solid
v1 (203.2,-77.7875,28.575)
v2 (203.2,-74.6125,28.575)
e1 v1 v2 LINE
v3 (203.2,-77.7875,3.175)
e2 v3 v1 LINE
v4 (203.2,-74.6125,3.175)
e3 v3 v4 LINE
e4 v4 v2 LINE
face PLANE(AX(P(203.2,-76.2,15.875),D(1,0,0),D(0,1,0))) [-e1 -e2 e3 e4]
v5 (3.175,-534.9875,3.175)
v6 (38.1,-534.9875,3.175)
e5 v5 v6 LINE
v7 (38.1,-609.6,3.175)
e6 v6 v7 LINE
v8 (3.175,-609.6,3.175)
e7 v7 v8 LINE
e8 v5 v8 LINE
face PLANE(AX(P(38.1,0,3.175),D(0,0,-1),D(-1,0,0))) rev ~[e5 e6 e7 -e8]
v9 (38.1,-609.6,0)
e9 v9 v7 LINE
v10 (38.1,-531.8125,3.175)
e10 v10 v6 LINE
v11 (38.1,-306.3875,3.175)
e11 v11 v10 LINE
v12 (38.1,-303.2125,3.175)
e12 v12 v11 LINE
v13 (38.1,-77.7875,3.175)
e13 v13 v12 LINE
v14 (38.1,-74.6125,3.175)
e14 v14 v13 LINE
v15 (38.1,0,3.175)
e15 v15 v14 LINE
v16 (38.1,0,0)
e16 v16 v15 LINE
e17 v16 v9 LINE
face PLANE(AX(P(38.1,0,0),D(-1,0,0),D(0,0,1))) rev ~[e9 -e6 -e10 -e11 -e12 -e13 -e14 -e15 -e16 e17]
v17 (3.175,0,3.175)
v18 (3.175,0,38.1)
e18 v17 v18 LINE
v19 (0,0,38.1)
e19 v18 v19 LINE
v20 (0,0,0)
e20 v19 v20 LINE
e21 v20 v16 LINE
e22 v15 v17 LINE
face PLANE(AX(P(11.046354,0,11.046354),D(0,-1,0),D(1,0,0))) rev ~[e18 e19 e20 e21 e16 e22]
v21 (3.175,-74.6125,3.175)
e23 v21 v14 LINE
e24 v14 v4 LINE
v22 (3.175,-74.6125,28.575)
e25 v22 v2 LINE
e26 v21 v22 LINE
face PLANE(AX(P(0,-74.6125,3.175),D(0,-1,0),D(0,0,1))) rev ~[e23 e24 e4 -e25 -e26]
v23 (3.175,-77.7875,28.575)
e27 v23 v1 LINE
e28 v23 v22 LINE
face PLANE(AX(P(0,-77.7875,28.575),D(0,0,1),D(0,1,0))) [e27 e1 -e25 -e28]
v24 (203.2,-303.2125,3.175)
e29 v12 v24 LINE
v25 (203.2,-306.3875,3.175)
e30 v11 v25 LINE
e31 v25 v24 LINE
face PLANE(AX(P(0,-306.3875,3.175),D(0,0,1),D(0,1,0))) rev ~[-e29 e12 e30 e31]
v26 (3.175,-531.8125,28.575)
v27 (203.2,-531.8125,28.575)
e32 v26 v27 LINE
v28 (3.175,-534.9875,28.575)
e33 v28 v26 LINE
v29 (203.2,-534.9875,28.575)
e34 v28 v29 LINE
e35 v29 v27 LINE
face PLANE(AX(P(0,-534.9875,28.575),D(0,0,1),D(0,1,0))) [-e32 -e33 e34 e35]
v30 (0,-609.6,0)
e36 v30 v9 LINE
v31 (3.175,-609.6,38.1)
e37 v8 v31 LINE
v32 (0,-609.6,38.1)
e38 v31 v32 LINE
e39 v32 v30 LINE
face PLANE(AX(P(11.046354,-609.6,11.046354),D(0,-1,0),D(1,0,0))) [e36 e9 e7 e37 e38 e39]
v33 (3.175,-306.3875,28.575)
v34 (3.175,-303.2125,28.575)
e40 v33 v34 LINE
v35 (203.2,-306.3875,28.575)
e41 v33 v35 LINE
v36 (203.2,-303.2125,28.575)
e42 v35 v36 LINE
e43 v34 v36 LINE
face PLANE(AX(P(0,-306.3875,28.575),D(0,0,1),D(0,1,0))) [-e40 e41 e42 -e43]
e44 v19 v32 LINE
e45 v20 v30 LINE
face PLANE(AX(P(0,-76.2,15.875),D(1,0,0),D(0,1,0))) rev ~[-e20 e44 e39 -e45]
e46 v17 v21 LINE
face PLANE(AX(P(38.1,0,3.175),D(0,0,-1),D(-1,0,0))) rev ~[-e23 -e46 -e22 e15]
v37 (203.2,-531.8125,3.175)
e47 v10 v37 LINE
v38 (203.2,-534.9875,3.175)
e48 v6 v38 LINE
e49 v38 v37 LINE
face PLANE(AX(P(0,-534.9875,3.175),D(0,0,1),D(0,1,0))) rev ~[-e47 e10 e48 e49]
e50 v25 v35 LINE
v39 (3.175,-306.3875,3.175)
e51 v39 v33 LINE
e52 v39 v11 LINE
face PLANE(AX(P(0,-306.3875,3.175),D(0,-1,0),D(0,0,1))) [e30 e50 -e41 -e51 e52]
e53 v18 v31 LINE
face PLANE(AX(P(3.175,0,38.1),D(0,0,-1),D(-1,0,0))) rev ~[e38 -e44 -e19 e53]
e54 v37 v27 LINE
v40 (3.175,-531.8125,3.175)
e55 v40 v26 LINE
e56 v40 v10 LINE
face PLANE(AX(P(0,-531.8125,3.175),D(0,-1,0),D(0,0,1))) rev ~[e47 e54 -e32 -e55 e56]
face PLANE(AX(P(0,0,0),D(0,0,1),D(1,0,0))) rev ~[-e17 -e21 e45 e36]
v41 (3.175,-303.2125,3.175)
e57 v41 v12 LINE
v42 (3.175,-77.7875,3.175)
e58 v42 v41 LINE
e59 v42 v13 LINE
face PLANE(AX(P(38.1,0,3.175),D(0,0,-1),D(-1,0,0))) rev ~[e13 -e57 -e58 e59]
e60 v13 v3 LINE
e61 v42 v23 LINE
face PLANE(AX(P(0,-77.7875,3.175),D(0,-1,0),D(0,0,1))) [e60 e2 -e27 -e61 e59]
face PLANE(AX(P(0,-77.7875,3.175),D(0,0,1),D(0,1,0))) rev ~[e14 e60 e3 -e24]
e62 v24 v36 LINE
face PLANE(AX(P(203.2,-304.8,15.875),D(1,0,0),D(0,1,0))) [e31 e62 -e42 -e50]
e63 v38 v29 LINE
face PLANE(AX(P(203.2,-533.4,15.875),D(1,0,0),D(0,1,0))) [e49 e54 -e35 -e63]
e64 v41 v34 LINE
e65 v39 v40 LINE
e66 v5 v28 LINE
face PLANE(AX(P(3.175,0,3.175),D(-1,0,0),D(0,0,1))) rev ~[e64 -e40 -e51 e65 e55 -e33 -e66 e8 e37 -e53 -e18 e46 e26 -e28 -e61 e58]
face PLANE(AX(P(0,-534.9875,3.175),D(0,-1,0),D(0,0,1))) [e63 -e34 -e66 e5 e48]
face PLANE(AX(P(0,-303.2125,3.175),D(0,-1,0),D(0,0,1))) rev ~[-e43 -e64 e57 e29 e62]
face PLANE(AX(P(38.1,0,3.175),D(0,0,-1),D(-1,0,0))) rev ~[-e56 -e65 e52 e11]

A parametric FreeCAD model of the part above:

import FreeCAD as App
import Part
import Sketcher

V = App.Vector
Q = App.Units.Quantity

doc = App.newDocument("Part")
body = doc.addObject("PartDesign::Body", "Body")

sketch1 = body.newObject("Sketcher::SketchObject", "Sketch")
sketch1.AttachmentSupport = (doc.getObject("XZ_Plane"), [""])
sketch1.MapMode = "FlatFace"
sketch1.addGeometry(Part.LineSegment(V(3.175, 38.1, 0), V(0, 38.1, 0)), False)
sketch1.addGeometry(Part.LineSegment(V(0, 38.1, 0), V(0, 0, 0)), False)
sketch1.addGeometry(Part.LineSegment(V(0, 0, 0), V(38.1, 0, 0)), False)
sketch1.addGeometry(Part.LineSegment(V(38.1, 0, 0), V(38.1, 3.175, 0)), False)
sketch1.addGeometry(Part.LineSegment(V(38.1, 3.175, 0), V(3.175, 3.175, 0)), False)
sketch1.addGeometry(Part.LineSegment(V(3.175, 3.175, 0), V(3.175, 38.1, 0)), False)
sketch1.addConstraint(Sketcher.Constraint("Coincident", 0, 2, 1, 1))
sketch1.addConstraint(Sketcher.Constraint("Coincident", 1, 2, 2, 1))
sketch1.addConstraint(Sketcher.Constraint("Coincident", 2, 2, 3, 1))
sketch1.addConstraint(Sketcher.Constraint("Coincident", 3, 2, 4, 1))
sketch1.addConstraint(Sketcher.Constraint("Coincident", 4, 2, 5, 1))
sketch1.addConstraint(Sketcher.Constraint("Coincident", 5, 2, 0, 1))
sketch1.addConstraint(Sketcher.Constraint("Horizontal", 0))
sketch1.addConstraint(Sketcher.Constraint("Vertical", 1))
sketch1.addConstraint(Sketcher.Constraint("Horizontal", 2))
sketch1.addConstraint(Sketcher.Constraint("Vertical", 3))
sketch1.addConstraint(Sketcher.Constraint("Horizontal", 4))
sketch1.addConstraint(Sketcher.Constraint("Vertical", 5))
sketch1.addConstraint(Sketcher.Constraint("Coincident", 1, 2, -1, 1))
sketch1.addConstraint(Sketcher.Constraint("Equal", 2, 1))
sketch1.addConstraint(Sketcher.Constraint("Equal", 0, 3))
sketch1.addConstraint(Sketcher.Constraint("DistanceX", 2, 1, 2, 2, Q("1.5 in")))
sketch1.addConstraint(Sketcher.Constraint("DistanceX", 0, 2, 0, 1, Q("0.125 in")))
pad1 = body.newObject("PartDesign::Pad", "Pad")
pad1.Profile = sketch1
pad1.Length = Q("24 in")

sketch2 = body.newObject("Sketcher::SketchObject", "Sketch001")
sketch2.AttachmentSupport = (doc.getObject("YZ_Plane"), [""])
sketch2.MapMode = "FlatFace"
sketch2.addGeometry(Part.LineSegment(V(-77.7875, 28.575, 0), V(-77.7875, 3.175, 0)), False)
sketch2.addGeometry(Part.LineSegment(V(-77.7875, 3.175, 0), V(-74.6125, 3.175, 0)), False)
sketch2.addGeometry(Part.LineSegment(V(-74.6125, 3.175, 0), V(-74.6125, 28.575, 0)), False)
sketch2.addGeometry(Part.LineSegment(V(-74.6125, 28.575, 0), V(-77.7875, 28.575, 0)), False)
sketch2.addGeometry(Part.LineSegment(V(-306.3875, 28.575, 0), V(-306.3875, 3.175, 0)), False)
sketch2.addGeometry(Part.LineSegment(V(-306.3875, 3.175, 0), V(-303.2125, 3.175, 0)), False)
sketch2.addGeometry(Part.LineSegment(V(-303.2125, 3.175, 0), V(-303.2125, 28.575, 0)), False)
sketch2.addGeometry(Part.LineSegment(V(-303.2125, 28.575, 0), V(-306.3875, 28.575, 0)), False)
sketch2.addGeometry(Part.LineSegment(V(-534.9875, 28.575, 0), V(-534.9875, 3.175, 0)), False)
sketch2.addGeometry(Part.LineSegment(V(-534.9875, 3.175, 0), V(-531.8125, 3.175, 0)), False)
sketch2.addGeometry(Part.LineSegment(V(-531.8125, 3.175, 0), V(-531.8125, 28.575, 0)), False)
sketch2.addGeometry(Part.LineSegment(V(-531.8125, 28.575, 0), V(-534.9875, 28.575, 0)), False)
sketch2.addConstraint(Sketcher.Constraint("Coincident", 0, 2, 1, 1))
sketch2.addConstraint(Sketcher.Constraint("Coincident", 1, 2, 2, 1))
sketch2.addConstraint(Sketcher.Constraint("Coincident", 2, 2, 3, 1))
sketch2.addConstraint(Sketcher.Constraint("Coincident", 3, 2, 0, 1))
sketch2.addConstraint(Sketcher.Constraint("Coincident", 4, 2, 5, 1))
sketch2.addConstraint(Sketcher.Constraint("Coincident", 5, 2, 6, 1))
sketch2.addConstraint(Sketcher.Constraint("Coincident", 6, 2, 7, 1))
sketch2.addConstraint(Sketcher.Constraint("Coincident", 7, 2, 4, 1))
sketch2.addConstraint(Sketcher.Constraint("Coincident", 8, 2, 9, 1))
sketch2.addConstraint(Sketcher.Constraint("Coincident", 9, 2, 10, 1))
sketch2.addConstraint(Sketcher.Constraint("Coincident", 10, 2, 11, 1))
sketch2.addConstraint(Sketcher.Constraint("Coincident", 11, 2, 8, 1))
sketch2.addConstraint(Sketcher.Constraint("Vertical", 0))
sketch2.addConstraint(Sketcher.Constraint("Horizontal", 1))
sketch2.addConstraint(Sketcher.Constraint("Vertical", 2))
sketch2.addConstraint(Sketcher.Constraint("Horizontal", 3))
sketch2.addConstraint(Sketcher.Constraint("Vertical", 4))
sketch2.addConstraint(Sketcher.Constraint("Horizontal", 5))
sketch2.addConstraint(Sketcher.Constraint("Vertical", 6))
sketch2.addConstraint(Sketcher.Constraint("Horizontal", 7))
sketch2.addConstraint(Sketcher.Constraint("Vertical", 8))
sketch2.addConstraint(Sketcher.Constraint("Horizontal", 9))
sketch2.addConstraint(Sketcher.Constraint("Vertical", 10))
sketch2.addConstraint(Sketcher.Constraint("Horizontal", 11))
sketch2.addConstraint(Sketcher.Constraint("Horizontal", 1, 2, 4, 2))
sketch2.addConstraint(Sketcher.Constraint("Horizontal", 3, 2, 6, 2))
sketch2.addConstraint(Sketcher.Constraint("Horizontal", 5, 2, 8, 2))
sketch2.addConstraint(Sketcher.Constraint("Horizontal", 7, 2, 10, 2))
sketch2.addConstraint(Sketcher.Constraint("Equal", 3, 5))
sketch2.addConstraint(Sketcher.Constraint("Equal", 7, 9))
sketch2.addConstraint(Sketcher.Constraint("DistanceY", 0, 2, 0, 1, Q("1 in")))
sketch2.addConstraint(Sketcher.Constraint("DistanceX", 4, 2, 0, 2, Q("9 in")))
sketch2.addConstraint(Sketcher.Constraint("DistanceX", 8, 2, 4, 2, Q("9 in")))
sketch2.addConstraint(Sketcher.Constraint("DistanceX", 1, 1, 1, 2, Q("0.125 in")))
sketch2.addConstraint(Sketcher.Constraint("DistanceX", 0, 2, -1, 1, Q("3.0625 in")))
sketch2.addConstraint(Sketcher.Constraint("DistanceY", -1, 1, 0, 2, Q("0.125 in")))
pad2 = body.newObject("PartDesign::Pad", "Pad001")
pad2.Profile = sketch2
pad2.Length = Q("8 in")

doc.recompute()
